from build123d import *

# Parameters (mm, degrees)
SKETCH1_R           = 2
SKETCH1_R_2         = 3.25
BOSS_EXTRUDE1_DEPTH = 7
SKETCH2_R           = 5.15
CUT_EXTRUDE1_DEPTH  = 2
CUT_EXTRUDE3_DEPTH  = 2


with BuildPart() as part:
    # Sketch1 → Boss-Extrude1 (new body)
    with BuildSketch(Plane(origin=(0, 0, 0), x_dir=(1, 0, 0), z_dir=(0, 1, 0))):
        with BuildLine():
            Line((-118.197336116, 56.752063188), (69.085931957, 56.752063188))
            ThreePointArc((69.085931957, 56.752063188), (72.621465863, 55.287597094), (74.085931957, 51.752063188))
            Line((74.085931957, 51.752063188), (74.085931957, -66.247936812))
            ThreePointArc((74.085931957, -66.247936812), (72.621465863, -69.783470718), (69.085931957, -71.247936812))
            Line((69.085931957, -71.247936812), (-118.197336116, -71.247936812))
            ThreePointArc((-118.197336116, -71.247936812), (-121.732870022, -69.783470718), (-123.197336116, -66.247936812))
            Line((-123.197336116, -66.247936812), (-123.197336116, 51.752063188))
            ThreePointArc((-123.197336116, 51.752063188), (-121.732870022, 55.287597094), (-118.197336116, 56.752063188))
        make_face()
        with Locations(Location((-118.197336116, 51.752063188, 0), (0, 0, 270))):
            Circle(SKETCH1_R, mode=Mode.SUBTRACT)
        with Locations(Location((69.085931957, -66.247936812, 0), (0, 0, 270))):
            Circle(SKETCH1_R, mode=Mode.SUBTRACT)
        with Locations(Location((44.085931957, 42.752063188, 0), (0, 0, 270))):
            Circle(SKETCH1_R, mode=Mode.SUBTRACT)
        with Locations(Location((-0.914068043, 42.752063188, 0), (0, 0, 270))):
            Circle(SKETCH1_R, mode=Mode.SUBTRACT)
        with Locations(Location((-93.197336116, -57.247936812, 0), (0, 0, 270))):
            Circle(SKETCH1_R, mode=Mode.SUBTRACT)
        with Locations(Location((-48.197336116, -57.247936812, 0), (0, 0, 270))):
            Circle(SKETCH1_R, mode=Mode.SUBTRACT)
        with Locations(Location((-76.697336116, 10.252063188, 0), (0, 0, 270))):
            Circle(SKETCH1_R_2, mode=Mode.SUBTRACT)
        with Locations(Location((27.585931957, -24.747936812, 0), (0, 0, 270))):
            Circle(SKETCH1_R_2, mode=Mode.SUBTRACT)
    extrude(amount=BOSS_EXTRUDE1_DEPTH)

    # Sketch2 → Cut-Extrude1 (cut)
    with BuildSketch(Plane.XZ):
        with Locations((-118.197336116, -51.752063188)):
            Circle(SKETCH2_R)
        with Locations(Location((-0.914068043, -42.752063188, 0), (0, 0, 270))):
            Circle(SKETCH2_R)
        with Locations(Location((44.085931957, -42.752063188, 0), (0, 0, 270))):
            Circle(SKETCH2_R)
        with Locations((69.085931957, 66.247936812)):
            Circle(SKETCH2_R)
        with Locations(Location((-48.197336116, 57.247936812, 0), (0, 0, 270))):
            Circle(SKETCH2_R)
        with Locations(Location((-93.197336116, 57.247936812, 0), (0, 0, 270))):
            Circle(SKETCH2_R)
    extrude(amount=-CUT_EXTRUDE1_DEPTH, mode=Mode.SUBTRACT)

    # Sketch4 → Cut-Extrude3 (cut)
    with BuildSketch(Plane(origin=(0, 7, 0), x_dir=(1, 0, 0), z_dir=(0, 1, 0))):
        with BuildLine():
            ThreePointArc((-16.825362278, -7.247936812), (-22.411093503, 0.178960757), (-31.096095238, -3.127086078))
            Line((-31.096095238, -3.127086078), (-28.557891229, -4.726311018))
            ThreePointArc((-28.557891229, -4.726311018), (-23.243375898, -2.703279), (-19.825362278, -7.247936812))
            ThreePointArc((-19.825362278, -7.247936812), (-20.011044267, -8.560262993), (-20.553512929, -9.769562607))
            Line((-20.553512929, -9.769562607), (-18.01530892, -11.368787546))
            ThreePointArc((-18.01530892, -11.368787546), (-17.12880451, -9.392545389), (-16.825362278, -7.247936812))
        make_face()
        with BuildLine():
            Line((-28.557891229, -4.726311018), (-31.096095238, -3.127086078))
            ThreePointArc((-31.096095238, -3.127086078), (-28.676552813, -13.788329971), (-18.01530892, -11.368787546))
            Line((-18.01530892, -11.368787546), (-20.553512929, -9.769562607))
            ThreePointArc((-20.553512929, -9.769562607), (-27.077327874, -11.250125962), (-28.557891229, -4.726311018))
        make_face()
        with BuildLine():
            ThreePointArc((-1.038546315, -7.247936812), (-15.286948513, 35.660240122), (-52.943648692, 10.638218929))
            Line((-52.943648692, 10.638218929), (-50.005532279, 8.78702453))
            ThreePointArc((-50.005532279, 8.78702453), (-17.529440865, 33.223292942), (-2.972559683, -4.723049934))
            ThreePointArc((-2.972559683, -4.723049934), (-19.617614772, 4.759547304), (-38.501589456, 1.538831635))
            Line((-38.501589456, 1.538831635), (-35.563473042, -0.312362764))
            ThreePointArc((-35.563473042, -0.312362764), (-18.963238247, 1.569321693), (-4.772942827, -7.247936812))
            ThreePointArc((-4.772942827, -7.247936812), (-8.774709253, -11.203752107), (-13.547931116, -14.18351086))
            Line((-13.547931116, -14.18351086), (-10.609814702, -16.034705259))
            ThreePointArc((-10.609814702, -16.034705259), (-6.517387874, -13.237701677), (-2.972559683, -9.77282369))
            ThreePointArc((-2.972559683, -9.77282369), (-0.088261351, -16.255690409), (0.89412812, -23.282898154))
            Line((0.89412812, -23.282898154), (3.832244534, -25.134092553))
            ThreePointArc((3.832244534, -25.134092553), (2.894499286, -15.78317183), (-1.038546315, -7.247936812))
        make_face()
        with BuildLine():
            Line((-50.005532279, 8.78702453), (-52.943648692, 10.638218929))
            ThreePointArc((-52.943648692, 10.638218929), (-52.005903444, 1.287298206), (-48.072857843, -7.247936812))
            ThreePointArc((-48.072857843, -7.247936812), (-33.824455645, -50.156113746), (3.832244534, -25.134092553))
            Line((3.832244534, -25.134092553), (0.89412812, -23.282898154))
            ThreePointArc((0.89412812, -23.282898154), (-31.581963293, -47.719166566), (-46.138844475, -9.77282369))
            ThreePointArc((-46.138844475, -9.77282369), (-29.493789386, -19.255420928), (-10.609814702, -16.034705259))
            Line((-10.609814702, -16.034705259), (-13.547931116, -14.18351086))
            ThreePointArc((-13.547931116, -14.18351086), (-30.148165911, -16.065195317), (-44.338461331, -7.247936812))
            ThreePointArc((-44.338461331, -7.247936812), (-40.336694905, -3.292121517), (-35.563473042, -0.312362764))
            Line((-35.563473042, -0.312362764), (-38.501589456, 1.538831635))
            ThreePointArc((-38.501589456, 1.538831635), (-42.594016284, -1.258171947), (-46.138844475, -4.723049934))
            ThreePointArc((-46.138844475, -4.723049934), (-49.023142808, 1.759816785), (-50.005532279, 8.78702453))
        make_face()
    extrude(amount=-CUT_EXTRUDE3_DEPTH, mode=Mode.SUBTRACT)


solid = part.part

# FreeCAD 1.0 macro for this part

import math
import FreeCAD as App
import Part
import Sketcher

doc = App.newDocument("Part")
body = doc.addObject("PartDesign::Body", "Body")

# Sketch on XZ plane
sketch1 = body.newObject("Sketcher::SketchObject", "Sketch")
sketch1.AttachmentSupport = (doc.getObject("XZ_Plane"), [""])
sketch1.MapMode = "FlatFace"
sketch1.addGeometry(Part.LineSegment(App.Vector(69.1, -56.8, 0), App.Vector(-118.2, -56.8, 0)), False)
sketch1.addGeometry(Part.ArcOfCircle(Part.Circle(App.Vector(-118.2, -51.8, 0), App.Vector(0, 0, 1), 5), math.radians(180), math.radians(270)), False)
sketch1.addGeometry(Part.LineSegment(App.Vector(-123.2, -51.8, 0), App.Vector(-123.2, 66.2, 0)), False)
sketch1.addGeometry(Part.ArcOfCircle(Part.Circle(App.Vector(-118.2, 66.2, 0), App.Vector(0, 0, 1), 5), math.radians(90), math.radians(180)), False)
sketch1.addGeometry(Part.LineSegment(App.Vector(-118.2, 71.2, 0), App.Vector(69.1, 71.2, 0)), False)
sketch1.addGeometry(Part.ArcOfCircle(Part.Circle(App.Vector(69.1, 66.2, 0), App.Vector(0, 0, 1), 5), math.radians(0), math.radians(90)), False)
sketch1.addGeometry(Part.LineSegment(App.Vector(74.1, 66.2, 0), App.Vector(74.1, -51.8, 0)), False)
sketch1.addGeometry(Part.ArcOfCircle(Part.Circle(App.Vector(69.1, -51.8, 0), App.Vector(0, 0, 1), 5), math.radians(-90), math.radians(0)), False)
sketch1.addGeometry(Part.Circle(App.Vector(69.1, 66.2, 0), App.Vector(0, 0, 1), 2), False)
sketch1.addGeometry(Part.Circle(App.Vector(27.6, 24.7, 0), App.Vector(0, 0, 1), 3.2), False)
sketch1.addGeometry(Part.Circle(App.Vector(-48.2, 57.2, 0), App.Vector(0, 0, 1), 2), False)
sketch1.addGeometry(Part.Circle(App.Vector(-93.2, 57.2, 0), App.Vector(0, 0, 1), 2), False)
sketch1.addGeometry(Part.Circle(App.Vector(44.1, -42.8, 0), App.Vector(0, 0, 1), 2), False)
sketch1.addGeometry(Part.Circle(App.Vector(-0.9, -42.8, 0), App.Vector(0, 0, 1), 2), False)
sketch1.addGeometry(Part.Circle(App.Vector(-76.7, -10.3, 0), App.Vector(0, 0, 1), 3.2), False)
sketch1.addGeometry(Part.Circle(App.Vector(-118.2, -51.8, 0), App.Vector(0, 0, 1), 2), False)
sketch1.addConstraint(Sketcher.Constraint("Tangent", 0, 2, 1, 2))
sketch1.addConstraint(Sketcher.Constraint("Tangent", 1, 1, 2, 1))
sketch1.addConstraint(Sketcher.Constraint("Tangent", 2, 2, 3, 2))
sketch1.addConstraint(Sketcher.Constraint("Tangent", 3, 1, 4, 1))
sketch1.addConstraint(Sketcher.Constraint("Tangent", 4, 2, 5, 2))
sketch1.addConstraint(Sketcher.Constraint("Tangent", 5, 1, 6, 1))
sketch1.addConstraint(Sketcher.Constraint("Tangent", 6, 2, 7, 2))
sketch1.addConstraint(Sketcher.Constraint("Tangent", 7, 1, 0, 1))
sketch1.addConstraint(Sketcher.Constraint("Horizontal", 0))
sketch1.addConstraint(Sketcher.Constraint("Vertical", 2))
sketch1.addConstraint(Sketcher.Constraint("Horizontal", 4))
sketch1.addConstraint(Sketcher.Constraint("Vertical", 6))
sketch1.addConstraint(Sketcher.Constraint("Coincident", 8, 3, 5, 3))
sketch1.addConstraint(Sketcher.Constraint("Coincident", 15, 3, 1, 3))
sketch1.addConstraint(Sketcher.Constraint("Equal", 1, 3))
sketch1.addConstraint(Sketcher.Constraint("Equal", 3, 5))
sketch1.addConstraint(Sketcher.Constraint("Equal", 5, 7))
sketch1.addConstraint(Sketcher.Constraint("Equal", 8, 10))
sketch1.addConstraint(Sketcher.Constraint("Equal", 10, 11))
sketch1.addConstraint(Sketcher.Constraint("Equal", 11, 12))
sketch1.addConstraint(Sketcher.Constraint("Equal", 12, 13))
sketch1.addConstraint(Sketcher.Constraint("Equal", 9, 14))
sketch1.addConstraint(Sketcher.Constraint("Equal", 13, 15))
sketch1.addConstraint(Sketcher.Constraint("Horizontal", 10, 3, 11, 3))
sketch1.addConstraint(Sketcher.Constraint("Horizontal", 12, 3, 13, 3))
sketch1.addConstraint(Sketcher.Constraint("Diameter", 8, 4.0))
sketch1.addConstraint(Sketcher.Constraint("Radius", 1, 5.0))
sketch1.addConstraint(Sketcher.Constraint("Diameter", 9, 6.5))
sketch1.addConstraint(Sketcher.Constraint("DistanceY", 2, 1, 2, 2, 118.0))
sketch1.addConstraint(Sketcher.Constraint("DistanceX", 3, 3, 10, 3, 70.0))
sketch1.addConstraint(Sketcher.Constraint("DistanceY", 10, 3, 3, 3, 9.0))
sketch1.addConstraint(Sketcher.Constraint("DistanceX", 3, 3, 11, 3, 25.0))
sketch1.addConstraint(Sketcher.Constraint("DistanceX", 12, 3, 7, 3, 25.0))
sketch1.addConstraint(Sketcher.Constraint("DistanceY", 7, 3, 12, 3, 9.0))
sketch1.addConstraint(Sketcher.Constraint("DistanceX", 13, 3, 12, 3, 45.0))
sketch1.addConstraint(Sketcher.Constraint("DistanceX", 9, 3, 5, 3, 41.5))
sketch1.addConstraint(Sketcher.Constraint("DistanceY", 9, 3, 5, 3, 41.5))
sketch1.addConstraint(Sketcher.Constraint("DistanceX", 1, 3, 14, 3, 41.5))
sketch1.addConstraint(Sketcher.Constraint("DistanceY", 1, 3, 14, 3, 41.5))
sketch1.addConstraint(Sketcher.Constraint("DistanceX", 0, 2, 0, 1, 187.283268))
sketch1.addConstraint(Sketcher.Constraint("DistanceX", -1, 1, 5, 3, 69.085932))
sketch1.addConstraint(Sketcher.Constraint("DistanceY", 1, 3, -1, 1, 51.752063))
pad1 = body.newObject("PartDesign::Pad", "Pad")
pad1.Profile = sketch1
pad1.Length = 7
pad1.Reversed = True

# Sketch on XZ plane
sketch2 = body.newObject("Sketcher::SketchObject", "Sketch001")
sketch2.AttachmentSupport = (doc.getObject("XZ_Plane"), [""])
sketch2.MapMode = "FlatFace"
sketch2.addGeometry(Part.Circle(App.Vector(-118, -52, 0), App.Vector(0, 0, 1), 5), False)
sketch2.addGeometry(Part.Circle(App.Vector(-1, -43, 0), App.Vector(0, 0, 1), 5), False)
sketch2.addGeometry(Part.Circle(App.Vector(44, -43, 0), App.Vector(0, 0, 1), 5), False)
sketch2.addGeometry(Part.Circle(App.Vector(69, 66, 0), App.Vector(0, 0, 1), 5), False)
sketch2.addGeometry(Part.Circle(App.Vector(-48, 57, 0), App.Vector(0, 0, 1), 5), False)
sketch2.addGeometry(Part.Circle(App.Vector(-93, 57, 0), App.Vector(0, 0, 1), 5), False)
sketch2.addConstraint(Sketcher.Constraint("Equal", 0, 1))
sketch2.addConstraint(Sketcher.Constraint("Equal", 1, 2))
sketch2.addConstraint(Sketcher.Constraint("Equal", 2, 3))
sketch2.addConstraint(Sketcher.Constraint("Equal", 3, 4))
sketch2.addConstraint(Sketcher.Constraint("Equal", 4, 5))
sketch2.addConstraint(Sketcher.Constraint("Horizontal", 1, 3, 2, 3))
sketch2.addConstraint(Sketcher.Constraint("Horizontal", 4, 3, 5, 3))
sketch2.addConstraint(Sketcher.Constraint("Diameter", 0, 10.3))
sketch2.addConstraint(Sketcher.Constraint("DistanceY", 0, 3, 1, 3, 9.0))
sketch2.addConstraint(Sketcher.Constraint("DistanceX", 1, 3, 2, 3, 45.0))
sketch2.addConstraint(Sketcher.Constraint("DistanceX", 2, 3, 3, 3, 25.0))
sketch2.addConstraint(Sketcher.Constraint("DistanceY", 2, 3, 3, 3, 109.0))
sketch2.addConstraint(Sketcher.Constraint("DistanceY", 1, 3, 4, 3, 100.0))
sketch2.addConstraint(Sketcher.Constraint("DistanceX", 0, 3, 4, 3, 70.0))
sketch2.addConstraint(Sketcher.Constraint("DistanceX", 5, 3, 4, 3, 45.0))
sketch2.addConstraint(Sketcher.Constraint("DistanceX", 1, 3, -1, 1, 0.914068))
sketch2.addConstraint(Sketcher.Constraint("DistanceX", 0, 3, 1, 3, 117.283268))
sketch2.addConstraint(Sketcher.Constraint("DistanceY", 0, 3, -1, 1, 51.752063))
pocket1 = body.newObject("PartDesign::Pocket", "Pocket")
pocket1.Profile = sketch2
pocket1.Length = 2

# Sketch on XZ plane
sketch3 = body.newObject("Sketcher::SketchObject", "Sketch002")
sketch3.AttachmentSupport = (doc.getObject("XZ_Plane"), [""])
sketch3.MapMode = "FlatFace"
sketch3.AttachmentOffset = App.Placement(App.Vector(0, 0, -7), App.Rotation())
sketch3.addGeometry(Part.ArcOfCircle(Part.Circle(App.Vector(-24.6, 7.2, 0), App.Vector(0, 0, 1), 7.7), math.radians(-148), math.radians(0)), False)
sketch3.addGeometry(Part.ArcOfCircle(Part.Circle(App.Vector(-24.6, 7.2, 0), App.Vector(0, 0, 1), 7.7), math.radians(32), math.radians(212)), False)
sketch3.addGeometry(Part.ArcOfCircle(Part.Circle(App.Vector(-24.6, 7.2, 0), App.Vector(0, 0, 1), 7.7), math.radians(0), math.radians(32)), False)
sketch3.addGeometry(Part.ArcOfCircle(Part.Circle(App.Vector(-24.6, 7.2, 0), App.Vector(0, 0, 1), 4.7), math.radians(0), math.radians(32)), False)
sketch3.addGeometry(Part.ArcOfCircle(Part.Circle(App.Vector(-24.6, 7.2, 0), App.Vector(0, 0, 1), 4.7), math.radians(32), math.radians(212)), False)
sketch3.addGeometry(Part.ArcOfCircle(Part.Circle(App.Vector(-24.6, 7.2, 0), App.Vector(0, 0, 1), 4.7), math.radians(-148), math.radians(0)), False)
sketch3.addGeometry(Part.ArcOfCircle(Part.Circle(App.Vector(-24.6, -8.8, 0), App.Vector(0, 0, 1), 28.4), math.radians(-176), math.radians(34)), False)
sketch3.addGeometry(Part.ArcOfCircle(Part.Circle(App.Vector(-24.6, -8.8, 0), App.Vector(0, 0, 1), 28.4), math.radians(146), math.radians(184)), False)
sketch3.addGeometry(Part.ArcOfCircle(Part.Circle(App.Vector(-24.6, 23.3, 0), App.Vector(0, 0, 1), 28.4), math.radians(4), math.radians(214)), False)
sketch3.addGeometry(Part.ArcOfCircle(Part.Circle(App.Vector(-24.6, 23.3, 0), App.Vector(0, 0, 1), 28.4), math.radians(-34), math.radians(4)), False)
sketch3.addGeometry(Part.ArcOfCircle(Part.Circle(App.Vector(-24.6, 23.3, 0), App.Vector(0, 0, 1), 25.4), math.radians(-32), math.radians(0)), False)
sketch3.addGeometry(Part.ArcOfCircle(Part.Circle(App.Vector(-24.6, 23.3, 0), App.Vector(0, 0, 1), 25.4), math.radians(0), math.radians(212)), False)
sketch3.addGeometry(Part.ArcOfCircle(Part.Circle(App.Vector(-24.6, -8.8, 0), App.Vector(0, 0, 1), 28.4), math.radians(61), math.radians(139)), False)
sketch3.addGeometry(Part.ArcOfCircle(Part.Circle(App.Vector(-24.6, -8.8, 0), App.Vector(0, 0, 1), 28.4), math.radians(40.66), math.radians(60.65)), False)
sketch3.addGeometry(Part.ArcOfCircle(Part.Circle(App.Vector(-24.6, -8.8, 0), App.Vector(0, 0, 1), 25.4), math.radians(39), math.radians(64)), False)
sketch3.addGeometry(Part.ArcOfCircle(Part.Circle(App.Vector(-24.6, -8.8, 0), App.Vector(0, 0, 1), 25.4), math.radians(64), math.radians(141)), False)
sketch3.addGeometry(Part.ArcOfCircle(Part.Circle(App.Vector(-24.6, 23.3, 0), App.Vector(0, 0, 1), 25.4), math.radians(-141), math.radians(-116)), False)
sketch3.addGeometry(Part.ArcOfCircle(Part.Circle(App.Vector(-24.6, 23.3, 0), App.Vector(0, 0, 1), 25.4), math.radians(-116), math.radians(-39)), False)
sketch3.addGeometry(Part.ArcOfCircle(Part.Circle(App.Vector(-24.6, 23.3, 0), App.Vector(0, 0, 1), 28.4), math.radians(-119), math.radians(-41)), False)
sketch3.addGeometry(Part.ArcOfCircle(Part.Circle(App.Vector(-24.6, 23.3, 0), App.Vector(0, 0, 1), 28.4), math.radians(-139.34), math.radians(-119.35)), False)
sketch3.addGeometry(Part.ArcOfCircle(Part.Circle(App.Vector(-24.6, -8.8, 0), App.Vector(0, 0, 1), 25.4), math.radians(148), math.radians(180)), False)
sketch3.addGeometry(Part.ArcOfCircle(Part.Circle(App.Vector(-24.6, -8.8, 0), App.Vector(0, 0, 1), 25.4), math.radians(-180), math.radians(32)), False)
sketch3.addConstraint(Sketcher.Constraint("Tangent", 0, 1, 1, 2))
sketch3.addConstraint(Sketcher.Constraint("Tangent", 1, 1, 2, 2))
sketch3.addConstraint(Sketcher.Constraint("Tangent", 2, 1, 0, 2))
sketch3.addConstraint(Sketcher.Constraint("Tangent", 3, 2, 4, 1))
sketch3.addConstraint(Sketcher.Constraint("Tangent", 4, 2, 5, 1))
sketch3.addConstraint(Sketcher.Constraint("Tangent", 5, 2, 3, 1))
sketch3.addConstraint(Sketcher.Constraint("Tangent", 6, 1, 7, 2))
sketch3.addConstraint(Sketcher.Constraint("Coincident", 7, 1, 8, 2))
sketch3.addConstraint(Sketcher.Constraint("Tangent", 8, 1, 9, 2))
sketch3.addConstraint(Sketcher.Constraint("Coincident", 9, 1, 6, 2))
sketch3.addConstraint(Sketcher.Constraint("Tangent", 10, 2, 11, 1))
sketch3.addConstraint(Sketcher.Constraint("Coincident", 11, 2, 12, 2))
sketch3.addConstraint(Sketcher.Constraint("Tangent", 12, 1, 13, 2))
sketch3.addConstraint(Sketcher.Constraint("Coincident", 13, 1, 10, 1))
sketch3.addConstraint(Sketcher.Constraint("Tangent", 14, 2, 15, 1))
sketch3.addConstraint(Sketcher.Constraint("Coincident", 15, 2, 16, 1))
sketch3.addConstraint(Sketcher.Constraint("Tangent", 16, 2, 17, 1))
sketch3.addConstraint(Sketcher.Constraint("Coincident", 17, 2, 14, 1))
sketch3.addConstraint(Sketcher.Constraint("Tangent", 18, 1, 19, 2))
sketch3.addConstraint(Sketcher.Constraint("Coincident", 19, 1, 20, 1))
sketch3.addConstraint(Sketcher.Constraint("Tangent", 20, 2, 21, 1))
sketch3.addConstraint(Sketcher.Constraint("Coincident", 21, 2, 18, 2))
sketch3.addConstraint(Sketcher.Constraint("Coincident", 3, 3, 0, 3))
sketch3.addConstraint(Sketcher.Constraint("Coincident", 10, 3, 8, 3))
sketch3.addConstraint(Sketcher.Constraint("Coincident", 12, 3, 6, 3))
sketch3.addConstraint(Sketcher.Constraint("Coincident", 14, 3, 6, 3))
sketch3.addConstraint(Sketcher.Constraint("Coincident", 16, 3, 8, 3))
sketch3.addConstraint(Sketcher.Constraint("Coincident", 18, 3, 8, 3))
sketch3.addConstraint(Sketcher.Constraint("Coincident", 20, 3, 6, 3))
sketch3.addConstraint(Sketcher.Constraint("Equal", 6, 7))
sketch3.addConstraint(Sketcher.Constraint("Equal", 7, 8))
sketch3.addConstraint(Sketcher.Constraint("Equal", 8, 9))
sketch3.addConstraint(Sketcher.Constraint("Equal", 10, 11))
sketch3.addConstraint(Sketcher.Constraint("Equal", 9, 12))
sketch3.addConstraint(Sketcher.Constraint("Equal", 12, 13))
sketch3.addConstraint(Sketcher.Constraint("Equal", 11, 14))
sketch3.addConstraint(Sketcher.Constraint("Equal", 14, 15))
sketch3.addConstraint(Sketcher.Constraint("Equal", 15, 16))
sketch3.addConstraint(Sketcher.Constraint("Equal", 16, 17))
sketch3.addConstraint(Sketcher.Constraint("Equal", 13, 18))
sketch3.addConstraint(Sketcher.Constraint("Equal", 18, 19))
sketch3.addConstraint(Sketcher.Constraint("Equal", 17, 20))
sketch3.addConstraint(Sketcher.Constraint("Equal", 20, 21))
sketch3.addConstraint(Sketcher.Constraint("Horizontal", 5, 3, 2, 1))
sketch3.addConstraint(Sketcher.Constraint("Horizontal", 2, 1, 5, 2))
sketch3.addConstraint(Sketcher.Constraint("Horizontal", 5, 2, 7, 1))
sketch3.addConstraint(Sketcher.Constraint("Horizontal", 7, 1, 9, 1))
sketch3.addConstraint(Sketcher.Constraint("Vertical", 5, 3, 6, 3))
sketch3.addConstraint(Sketcher.Constraint("DistanceX", 5, 2, 2, 1, 3.0))
sketch3.addConstraint(Sketcher.Constraint("Radius", 0, 7.73034))
sketch3.addConstraint(Sketcher.Constraint("Radius", 6, 28.449842))
sketch3.addConstraint(Sketcher.Constraint("Radius", 10, 25.449842))
sketch3.addConstraint(Sketcher.Constraint("DistanceY", -1, 1, 10, 2, 23.282898))
sketch3.addConstraint(Sketcher.Constraint("DistanceX", 3, 2, 12, 1, 9.943698))
sketch3.addConstraint(Sketcher.Constraint("DistanceX", 18, 1, 4, 2, 9.943698))
sketch3.addConstraint(Sketcher.Constraint("DistanceY", -1, 1, 8, 3, 23.258461))
sketch3.addConstraint(Sketcher.Constraint("DistanceX", 1, 1, -1, 1, 18.015309))
sketch3.addConstraint(Sketcher.Constraint("DistanceX", 4, 2, -1, 1, 28.557891))
sketch3.addConstraint(Sketcher.Constraint("DistanceY", -1, 1, 4, 2, 4.726311))
sketch3.addConstraint(Sketcher.Constraint("DistanceX", 6, 1, -1, 1, 52.943649))
sketch3.addConstraint(Sketcher.Constraint("DistanceY", 6, 1, -1, 1, 10.638219))
sketch3.addConstraint(Sketcher.Constraint("DistanceX", 14, 2, -1, 1, 13.547931))
sketch3.addConstraint(Sketcher.Constraint("DistanceY", 0, 1, 3, 3, 4.120851))
sketch3.addConstraint(Sketcher.Constraint("DistanceX", 3, 2, 2, 1, 3.728151))
sketch3.addConstraint(Sketcher.Constraint("DistanceY", 19, 3, 8, 1, 1.875631))
sketch3.addConstraint(Sketcher.Constraint("DistanceX", 16, 2, 4, 2, 7.005582))
sketch3.addConstraint(Sketcher.Constraint("DistanceY", 20, 2, 7, 1, 16.034961))
pocket2 = body.newObject("PartDesign::Pocket", "Pocket001")
pocket2.Profile = sketch3
pocket2.Length = 2
pocket2.Reversed = True

doc.recompute()
